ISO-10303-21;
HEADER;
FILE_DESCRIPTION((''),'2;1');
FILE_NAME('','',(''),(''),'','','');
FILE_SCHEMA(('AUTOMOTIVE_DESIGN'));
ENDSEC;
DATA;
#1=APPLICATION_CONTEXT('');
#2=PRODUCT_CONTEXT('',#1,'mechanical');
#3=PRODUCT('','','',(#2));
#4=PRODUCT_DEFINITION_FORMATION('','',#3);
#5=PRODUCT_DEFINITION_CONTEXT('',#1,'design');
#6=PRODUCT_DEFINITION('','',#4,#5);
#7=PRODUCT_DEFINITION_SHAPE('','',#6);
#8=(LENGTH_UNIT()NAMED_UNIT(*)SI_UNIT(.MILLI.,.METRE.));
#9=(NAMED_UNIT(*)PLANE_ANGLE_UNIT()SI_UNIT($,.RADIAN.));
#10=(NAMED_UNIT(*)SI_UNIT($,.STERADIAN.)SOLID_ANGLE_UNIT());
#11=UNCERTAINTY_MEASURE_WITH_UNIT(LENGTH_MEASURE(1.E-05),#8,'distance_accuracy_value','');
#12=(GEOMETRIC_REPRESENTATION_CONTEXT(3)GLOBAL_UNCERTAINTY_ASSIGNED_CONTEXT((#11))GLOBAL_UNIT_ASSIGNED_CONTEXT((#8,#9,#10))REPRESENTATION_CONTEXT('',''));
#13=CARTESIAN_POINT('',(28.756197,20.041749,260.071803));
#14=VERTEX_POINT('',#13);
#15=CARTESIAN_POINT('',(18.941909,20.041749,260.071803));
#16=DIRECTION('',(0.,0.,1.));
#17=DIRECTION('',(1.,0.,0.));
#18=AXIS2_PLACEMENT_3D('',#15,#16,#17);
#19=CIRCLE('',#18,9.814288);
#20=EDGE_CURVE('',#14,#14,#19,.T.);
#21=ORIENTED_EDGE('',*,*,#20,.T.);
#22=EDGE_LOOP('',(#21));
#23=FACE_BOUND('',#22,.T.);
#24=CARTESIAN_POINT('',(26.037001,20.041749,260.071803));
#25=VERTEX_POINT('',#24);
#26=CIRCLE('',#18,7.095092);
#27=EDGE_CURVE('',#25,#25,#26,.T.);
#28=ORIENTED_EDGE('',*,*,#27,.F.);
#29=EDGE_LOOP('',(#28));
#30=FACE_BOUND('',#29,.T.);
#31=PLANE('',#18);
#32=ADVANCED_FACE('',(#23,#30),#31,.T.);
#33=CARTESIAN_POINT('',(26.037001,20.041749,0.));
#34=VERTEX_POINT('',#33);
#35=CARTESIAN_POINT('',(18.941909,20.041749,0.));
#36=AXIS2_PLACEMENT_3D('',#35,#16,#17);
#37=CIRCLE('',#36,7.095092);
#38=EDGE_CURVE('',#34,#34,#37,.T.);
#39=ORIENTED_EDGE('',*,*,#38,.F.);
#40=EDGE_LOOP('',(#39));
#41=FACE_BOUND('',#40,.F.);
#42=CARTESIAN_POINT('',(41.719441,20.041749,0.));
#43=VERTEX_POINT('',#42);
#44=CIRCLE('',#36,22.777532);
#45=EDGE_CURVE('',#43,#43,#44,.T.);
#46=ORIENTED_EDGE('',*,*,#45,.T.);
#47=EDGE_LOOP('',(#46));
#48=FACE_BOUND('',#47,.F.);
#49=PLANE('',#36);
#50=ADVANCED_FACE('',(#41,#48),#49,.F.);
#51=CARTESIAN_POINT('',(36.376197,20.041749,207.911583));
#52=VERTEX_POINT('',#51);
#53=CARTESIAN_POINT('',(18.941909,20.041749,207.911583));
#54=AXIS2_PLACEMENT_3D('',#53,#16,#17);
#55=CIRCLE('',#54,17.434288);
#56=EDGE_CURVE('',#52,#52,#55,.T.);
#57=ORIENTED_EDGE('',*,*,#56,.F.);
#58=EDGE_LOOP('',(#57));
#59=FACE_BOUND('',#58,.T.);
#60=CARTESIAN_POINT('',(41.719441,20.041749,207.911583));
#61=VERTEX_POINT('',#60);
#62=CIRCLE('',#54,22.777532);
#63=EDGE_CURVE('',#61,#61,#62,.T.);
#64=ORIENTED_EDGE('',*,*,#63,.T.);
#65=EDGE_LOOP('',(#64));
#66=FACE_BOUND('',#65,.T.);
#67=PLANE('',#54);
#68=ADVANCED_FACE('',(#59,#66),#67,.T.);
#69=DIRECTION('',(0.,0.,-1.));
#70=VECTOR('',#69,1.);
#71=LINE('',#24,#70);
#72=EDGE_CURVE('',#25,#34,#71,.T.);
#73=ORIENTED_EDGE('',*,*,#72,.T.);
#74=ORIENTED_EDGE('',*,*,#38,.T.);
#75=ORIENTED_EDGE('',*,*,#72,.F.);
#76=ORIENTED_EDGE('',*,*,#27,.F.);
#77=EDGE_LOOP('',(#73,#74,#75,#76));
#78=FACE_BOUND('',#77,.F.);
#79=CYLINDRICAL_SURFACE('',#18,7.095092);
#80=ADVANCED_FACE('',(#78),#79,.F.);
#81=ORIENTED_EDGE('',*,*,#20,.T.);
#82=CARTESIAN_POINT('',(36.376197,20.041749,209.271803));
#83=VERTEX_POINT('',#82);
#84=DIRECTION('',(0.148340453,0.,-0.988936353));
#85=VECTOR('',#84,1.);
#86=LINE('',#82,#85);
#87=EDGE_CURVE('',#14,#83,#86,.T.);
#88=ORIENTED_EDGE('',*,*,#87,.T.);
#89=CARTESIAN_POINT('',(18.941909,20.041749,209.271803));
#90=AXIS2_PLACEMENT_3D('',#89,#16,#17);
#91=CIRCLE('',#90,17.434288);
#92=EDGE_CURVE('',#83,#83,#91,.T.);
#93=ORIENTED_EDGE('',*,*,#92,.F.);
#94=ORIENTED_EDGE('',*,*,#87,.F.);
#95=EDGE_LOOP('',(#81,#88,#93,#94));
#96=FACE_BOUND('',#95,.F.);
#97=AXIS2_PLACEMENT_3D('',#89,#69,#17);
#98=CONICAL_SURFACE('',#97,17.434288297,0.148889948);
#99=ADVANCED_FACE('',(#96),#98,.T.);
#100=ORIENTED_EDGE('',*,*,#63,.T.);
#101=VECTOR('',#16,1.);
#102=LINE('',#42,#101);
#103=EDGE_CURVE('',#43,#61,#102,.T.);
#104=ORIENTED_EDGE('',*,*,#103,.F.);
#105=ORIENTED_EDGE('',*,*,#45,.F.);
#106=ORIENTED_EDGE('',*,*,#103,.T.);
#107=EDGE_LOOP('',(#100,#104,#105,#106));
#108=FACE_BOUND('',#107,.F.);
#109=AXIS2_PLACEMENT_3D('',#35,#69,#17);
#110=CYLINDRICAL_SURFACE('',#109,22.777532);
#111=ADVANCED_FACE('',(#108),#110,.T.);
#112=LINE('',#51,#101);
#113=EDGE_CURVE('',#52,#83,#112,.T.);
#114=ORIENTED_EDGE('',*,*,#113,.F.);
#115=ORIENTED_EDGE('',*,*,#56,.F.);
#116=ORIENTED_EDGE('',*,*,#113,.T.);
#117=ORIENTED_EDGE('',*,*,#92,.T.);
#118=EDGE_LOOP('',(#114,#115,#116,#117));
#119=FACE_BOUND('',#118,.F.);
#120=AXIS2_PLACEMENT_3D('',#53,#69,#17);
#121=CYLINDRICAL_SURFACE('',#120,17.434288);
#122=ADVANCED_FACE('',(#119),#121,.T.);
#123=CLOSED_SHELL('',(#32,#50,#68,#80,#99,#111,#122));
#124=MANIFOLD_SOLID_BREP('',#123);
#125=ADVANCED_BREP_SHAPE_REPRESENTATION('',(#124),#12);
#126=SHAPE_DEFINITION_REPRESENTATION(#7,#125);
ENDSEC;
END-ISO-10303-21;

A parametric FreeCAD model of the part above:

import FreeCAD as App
import Part
import Sketcher

V = App.Vector


def edges_at(feature, points):
    """Names of the edges that pass closest to the given points."""
    edges = feature.Shape.Edges
    near = lambda p: min(range(len(edges)), key=lambda i: edges[i].distToShape(Part.Vertex(*p))[0])
    return sorted({f"Edge{near(p) + 1}" for p in points})

doc = App.newDocument("Part")
params = doc.addObject("Spreadsheet::Sheet", "Params")
for row, (alias, value) in enumerate([
    ("pad1_length", "207.911583 mm"),
    ("pad2_length", "52.16022 mm"),
    ("chamfer_size", "0.3 in"),
    ("chamfer_size2", "2 in"),
    ("pocket1_length", "295.289064 mm"),
], start=1):
    params.set(f"A{row}", alias)
    params.set(f"B{row}", "=" + value)
    params.setAlias(f"B{row}", alias)

body = doc.addObject("PartDesign::Body", "Body")

sketch1 = doc.addObject("Sketcher::SketchObject", "Sketch")
body.addObject(sketch1)
sketch1.AttachmentSupport = (doc.XY_Plane, [""])
sketch1.MapMode = "FlatFace"
sketch1.addGeometry(Part.Circle(V(18.941909, 20.041749, 0), V(0, 0, 1), 22.777532), False)
sketch1.addConstraint([
    Sketcher.Constraint("Diameter", 0, 45.555064),
    Sketcher.Constraint("DistanceX", -1, 1, 0, 3, 18.941909),
    Sketcher.Constraint("DistanceY", -1, 1, 0, 3, 20.041749),
])
pad1 = doc.addObject("PartDesign::Pad", "Pad")
body.addObject(pad1)
pad1.Profile = sketch1
pad1.setExpression("Length", "Params.pad1_length")

sketch2 = doc.addObject("Sketcher::SketchObject", "Sketch001")
body.addObject(sketch2)
sketch2.AttachmentSupport = (doc.XY_Plane, [""])
sketch2.MapMode = "FlatFace"
sketch2.AttachmentOffset = App.Placement(V(0, 0, 207.911583), App.Rotation())
sketch2.addGeometry(Part.Circle(V(18.941909, 20.041749, 0), V(0, 0, 1), 17.434288), False)
sketch2.addConstraint([
    Sketcher.Constraint("Diameter", 0, 34.868577),
    Sketcher.Constraint("DistanceX", -1, 1, 0, 3, 18.941909),
    Sketcher.Constraint("DistanceY", -1, 1, 0, 3, 20.041749),
])
pad2 = doc.addObject("PartDesign::Pad", "Pad001")
body.addObject(pad2)
pad2.Profile = sketch2
pad2.setExpression("Length", "Params.pad2_length")
doc.recompute()

chamfer = doc.addObject("PartDesign::Chamfer", "Chamfer")
body.addObject(chamfer)
chamfer.Base = (pad2, edges_at(pad2, [(1.508, 20.042, 260.072)]))
chamfer.ChamferType = "Two distances"
chamfer.setExpression("Size", "Params.chamfer_size")
chamfer.setExpression("Size2", "Params.chamfer_size2")
chamfer.FlipDirection = True

sketch3 = doc.addObject("Sketcher::SketchObject", "Sketch002")
body.addObject(sketch3)
sketch3.AttachmentSupport = (doc.XY_Plane, [""])
sketch3.MapMode = "FlatFace"
sketch3.AttachmentOffset = App.Placement(V(0, 0, 260.071803), App.Rotation())
sketch3.addGeometry(Part.Circle(V(18.941909, 20.041749, 0), V(0, 0, 1), 7.095092), False)
sketch3.addConstraint([
    Sketcher.Constraint("Diameter", 0, 14.190184),
    Sketcher.Constraint("DistanceX", -1, 1, 0, 3, 18.941909),
    Sketcher.Constraint("DistanceY", -1, 1, 0, 3, 20.041749),
])
pocket1 = doc.addObject("PartDesign::Pocket", "Pocket")
body.addObject(pocket1)
pocket1.Profile = sketch3
pocket1.setExpression("Length", "Params.pocket1_length")

doc.recompute()
